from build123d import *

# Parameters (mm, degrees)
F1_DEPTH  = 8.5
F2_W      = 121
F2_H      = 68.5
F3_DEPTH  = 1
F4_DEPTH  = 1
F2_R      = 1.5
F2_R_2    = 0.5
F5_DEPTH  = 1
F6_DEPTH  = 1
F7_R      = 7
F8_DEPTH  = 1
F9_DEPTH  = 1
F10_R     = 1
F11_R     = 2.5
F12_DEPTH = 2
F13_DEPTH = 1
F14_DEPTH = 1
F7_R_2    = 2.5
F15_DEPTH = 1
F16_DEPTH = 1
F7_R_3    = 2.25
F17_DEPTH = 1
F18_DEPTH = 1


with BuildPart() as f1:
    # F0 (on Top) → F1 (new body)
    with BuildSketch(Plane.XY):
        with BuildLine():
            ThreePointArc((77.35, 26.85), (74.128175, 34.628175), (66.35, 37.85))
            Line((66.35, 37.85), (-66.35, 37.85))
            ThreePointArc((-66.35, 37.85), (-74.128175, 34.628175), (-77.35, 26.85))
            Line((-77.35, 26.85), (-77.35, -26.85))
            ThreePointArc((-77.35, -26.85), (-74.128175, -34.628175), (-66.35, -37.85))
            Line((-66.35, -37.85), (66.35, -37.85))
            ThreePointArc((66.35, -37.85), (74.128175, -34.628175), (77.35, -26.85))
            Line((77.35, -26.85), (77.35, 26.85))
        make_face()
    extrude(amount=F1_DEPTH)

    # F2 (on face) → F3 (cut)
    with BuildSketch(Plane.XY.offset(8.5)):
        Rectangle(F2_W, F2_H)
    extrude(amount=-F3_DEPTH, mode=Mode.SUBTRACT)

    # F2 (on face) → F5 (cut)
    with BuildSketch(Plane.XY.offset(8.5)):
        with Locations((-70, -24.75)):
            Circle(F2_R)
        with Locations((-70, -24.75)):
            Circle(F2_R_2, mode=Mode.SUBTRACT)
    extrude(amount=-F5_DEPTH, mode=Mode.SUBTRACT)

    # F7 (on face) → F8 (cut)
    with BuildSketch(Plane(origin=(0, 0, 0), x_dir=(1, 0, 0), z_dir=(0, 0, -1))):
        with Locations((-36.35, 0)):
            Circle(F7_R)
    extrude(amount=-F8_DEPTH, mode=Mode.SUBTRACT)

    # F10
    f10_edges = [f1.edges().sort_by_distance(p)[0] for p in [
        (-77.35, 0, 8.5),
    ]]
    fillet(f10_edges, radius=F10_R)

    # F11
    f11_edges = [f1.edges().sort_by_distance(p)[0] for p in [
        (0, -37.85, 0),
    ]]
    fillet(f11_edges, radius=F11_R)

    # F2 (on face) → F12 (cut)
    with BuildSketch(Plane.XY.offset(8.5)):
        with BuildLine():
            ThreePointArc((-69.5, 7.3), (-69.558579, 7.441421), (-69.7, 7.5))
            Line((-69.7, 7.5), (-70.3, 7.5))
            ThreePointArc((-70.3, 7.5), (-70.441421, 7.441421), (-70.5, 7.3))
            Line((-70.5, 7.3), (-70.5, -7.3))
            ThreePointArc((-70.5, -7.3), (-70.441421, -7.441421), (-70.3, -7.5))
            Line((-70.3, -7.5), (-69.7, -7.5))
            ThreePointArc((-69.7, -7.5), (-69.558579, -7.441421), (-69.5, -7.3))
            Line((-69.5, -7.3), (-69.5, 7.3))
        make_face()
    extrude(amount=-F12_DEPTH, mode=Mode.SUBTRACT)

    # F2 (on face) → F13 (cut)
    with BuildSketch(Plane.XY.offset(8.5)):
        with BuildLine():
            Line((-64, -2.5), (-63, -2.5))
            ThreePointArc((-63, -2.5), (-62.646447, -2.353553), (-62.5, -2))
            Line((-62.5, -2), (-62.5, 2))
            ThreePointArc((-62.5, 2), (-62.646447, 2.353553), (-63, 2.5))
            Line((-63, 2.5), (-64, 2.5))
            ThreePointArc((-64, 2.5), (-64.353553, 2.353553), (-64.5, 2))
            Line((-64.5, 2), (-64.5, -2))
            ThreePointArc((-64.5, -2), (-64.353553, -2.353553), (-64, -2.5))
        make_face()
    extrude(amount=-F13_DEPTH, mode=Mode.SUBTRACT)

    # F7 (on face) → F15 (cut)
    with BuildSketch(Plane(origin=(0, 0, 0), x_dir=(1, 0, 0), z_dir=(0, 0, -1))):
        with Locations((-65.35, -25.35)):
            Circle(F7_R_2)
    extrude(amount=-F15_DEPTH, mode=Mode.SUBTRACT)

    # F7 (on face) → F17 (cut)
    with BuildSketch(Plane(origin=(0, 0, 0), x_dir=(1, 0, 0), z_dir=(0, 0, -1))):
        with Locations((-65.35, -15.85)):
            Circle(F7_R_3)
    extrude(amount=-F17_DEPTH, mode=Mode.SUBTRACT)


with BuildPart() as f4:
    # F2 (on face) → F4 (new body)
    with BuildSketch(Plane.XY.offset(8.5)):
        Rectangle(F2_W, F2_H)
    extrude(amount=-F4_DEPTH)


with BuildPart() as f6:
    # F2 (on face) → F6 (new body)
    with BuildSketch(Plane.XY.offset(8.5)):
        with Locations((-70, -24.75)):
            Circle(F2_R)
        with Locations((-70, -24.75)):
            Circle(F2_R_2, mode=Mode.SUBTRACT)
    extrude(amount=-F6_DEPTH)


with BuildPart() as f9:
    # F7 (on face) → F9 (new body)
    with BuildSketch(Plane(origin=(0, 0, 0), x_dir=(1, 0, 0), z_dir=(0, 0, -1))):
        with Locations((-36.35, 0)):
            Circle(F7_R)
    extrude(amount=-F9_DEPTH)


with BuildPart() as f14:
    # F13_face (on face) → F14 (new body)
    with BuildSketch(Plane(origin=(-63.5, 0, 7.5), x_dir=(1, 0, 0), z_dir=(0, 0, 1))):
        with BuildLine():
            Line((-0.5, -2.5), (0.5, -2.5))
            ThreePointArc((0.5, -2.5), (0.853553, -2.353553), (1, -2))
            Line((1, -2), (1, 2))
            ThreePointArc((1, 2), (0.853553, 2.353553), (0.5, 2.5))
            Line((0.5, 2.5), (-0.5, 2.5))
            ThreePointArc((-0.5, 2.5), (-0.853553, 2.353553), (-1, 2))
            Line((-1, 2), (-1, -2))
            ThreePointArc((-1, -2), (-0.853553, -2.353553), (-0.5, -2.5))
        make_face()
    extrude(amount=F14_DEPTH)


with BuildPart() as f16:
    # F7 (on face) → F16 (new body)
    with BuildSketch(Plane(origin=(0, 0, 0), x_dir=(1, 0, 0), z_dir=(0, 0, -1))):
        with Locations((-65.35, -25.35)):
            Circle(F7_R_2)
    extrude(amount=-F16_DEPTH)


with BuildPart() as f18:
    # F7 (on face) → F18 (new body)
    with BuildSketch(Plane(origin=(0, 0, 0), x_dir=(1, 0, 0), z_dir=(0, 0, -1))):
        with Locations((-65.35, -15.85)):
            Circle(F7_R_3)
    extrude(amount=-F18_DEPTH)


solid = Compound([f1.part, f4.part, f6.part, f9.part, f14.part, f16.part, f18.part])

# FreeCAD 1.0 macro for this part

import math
import FreeCAD as App
import Part
import Sketcher
Q = App.Units.Quantity


def edges_at(feature, points):
    """Names of the edges that pass closest to the given points."""
    edges = feature.Shape.Edges
    near = lambda p: min(range(len(edges)), key=lambda i: edges[i].distToShape(Part.Vertex(*p))[0])
    return sorted({f"Edge{near(p) + 1}" for p in points})


def add_polygon(sketch, points):
    """Adds a closed chain of lines whose ends are joined by coincident constraints."""
    first, n = sketch.GeometryCount, len(points)
    for a, b in zip(points, points[1:] + points[:1]):
        sketch.addGeometry(Part.LineSegment(App.Vector(*a, 0), App.Vector(*b, 0)), False)
    for i in range(n):
        sketch.addConstraint(Sketcher.Constraint("Coincident", first + i, 2, first + (i + 1) % n, 1))

doc = App.newDocument("Part")
body = doc.addObject("PartDesign::Body", "Body")

# Sketch on XY plane
sketch1 = body.newObject("Sketcher::SketchObject", "Sketch")
sketch1.AttachmentSupport = (doc.getObject("XY_Plane"), [""])
sketch1.MapMode = "FlatFace"
sketch1.addGeometry([
    Part.ArcOfCircle(Part.Circle(App.Vector(66.350001, 26.850001, 0), App.Vector(0, 0, 1), 10.999999), math.radians(-0.000007), math.radians(90.000007)),  # 0
    Part.LineSegment(App.Vector(66.35, 37.85, 0), App.Vector(-66.35, 37.85, 0)),  # 1
    Part.ArcOfCircle(Part.Circle(App.Vector(-66.350001, 26.850001, 0), App.Vector(0, 0, 1), 10.999999), math.radians(89.999993), math.radians(180.000007)),  # 2
    Part.LineSegment(App.Vector(-77.35, 26.85, 0), App.Vector(-77.35, -26.85, 0)),  # 3
    Part.ArcOfCircle(Part.Circle(App.Vector(-66.350001, -26.850001, 0), App.Vector(0, 0, 1), 10.999999), math.radians(179.999993), math.radians(270.000007)),  # 4
    Part.LineSegment(App.Vector(-66.35, -37.85, 0), App.Vector(66.35, -37.85, 0)),  # 5
    Part.ArcOfCircle(Part.Circle(App.Vector(66.350001, -26.850001, 0), App.Vector(0, 0, 1), 10.999999), math.radians(-90.000007), math.radians(0.000007)),  # 6
    Part.LineSegment(App.Vector(77.35, -26.85, 0), App.Vector(77.35, 26.85, 0)),  # 7
], False)
sketch1.addConstraint([
    Sketcher.Constraint("Tangent", 0, 2, 1, 1),
    Sketcher.Constraint("Tangent", 1, 2, 2, 1),
    Sketcher.Constraint("Tangent", 2, 2, 3, 1),
    Sketcher.Constraint("Tangent", 3, 2, 4, 1),
    Sketcher.Constraint("Tangent", 4, 2, 5, 1),
    Sketcher.Constraint("Tangent", 5, 2, 6, 1),
    Sketcher.Constraint("Tangent", 6, 2, 7, 1),
    Sketcher.Constraint("Tangent", 7, 2, 0, 1),
    Sketcher.Constraint("Horizontal", 1),
    Sketcher.Constraint("Vertical", 3),
    Sketcher.Constraint("Horizontal", 5),
    Sketcher.Constraint("Vertical", 7),
    Sketcher.Constraint("Equal", 0, 2),
    Sketcher.Constraint("Equal", 2, 4),
    Sketcher.Constraint("Equal", 4, 6),
    Sketcher.Constraint("Symmetric", 0, 3, 4, 3, -1, 1),
    Sketcher.Constraint("Radius", 0, Q("10.999999 mm")),
    Sketcher.Constraint("DistanceX", 1, 2, 1, 1, Q("132.7 mm")),
    Sketcher.Constraint("DistanceY", 3, 2, 3, 1, Q("53.7 mm")),
])
pad1 = body.newObject("PartDesign::Pad", "Pad")
pad1.Profile = sketch1
pad1.Length = 8.5

# Sketch on XY plane
sketch2 = body.newObject("Sketcher::SketchObject", "Sketch001")
sketch2.AttachmentSupport = (doc.getObject("XY_Plane"), [""])
sketch2.MapMode = "FlatFace"
sketch2.AttachmentOffset = App.Placement(App.Vector(0, 0, 8.5), App.Rotation())
add_polygon(sketch2, [(-60.5, 34.25), (-60.5, -34.25), (60.5, -34.25), (60.5, 34.25)])  # lines 0-3
sketch2.addConstraint([
    Sketcher.Constraint("Vertical", 0),
    Sketcher.Constraint("Horizontal", 1),
    Sketcher.Constraint("Vertical", 2),
    Sketcher.Constraint("Horizontal", 3),
    Sketcher.Constraint("Symmetric", 0, 2, 2, 2, -1, 1),
    Sketcher.Constraint("DistanceX", 1, 1, 1, 2, Q("121 mm")),
    Sketcher.Constraint("DistanceY", 0, 2, 0, 1, Q("68.5 mm")),
])
pocket1 = body.newObject("PartDesign::Pocket", "Pocket")
pocket1.Profile = sketch2
pocket1.Length = 1

# Sketch on XY plane
sketch3 = body.newObject("Sketcher::SketchObject", "Sketch002")
sketch3.AttachmentSupport = (doc.getObject("XY_Plane"), [""])
sketch3.MapMode = "FlatFace"
sketch3.AttachmentOffset = App.Placement(App.Vector(0, 0, 8.5), App.Rotation())
sketch3.addGeometry([
    Part.Circle(App.Vector(-70, -24.75, 0), App.Vector(0, 0, 1), 1.5),
    Part.Circle(App.Vector(-70, -24.75, 0), App.Vector(0, 0, 1), 0.5),
], False)
sketch3.addConstraint([
    Sketcher.Constraint("Coincident", 1, 3, 0, 3),
    Sketcher.Constraint("Diameter", 0, Q("3 mm")),
    Sketcher.Constraint("Diameter", 1, Q("1 mm")),
    Sketcher.Constraint("DistanceX", 0, 3, -1, 1, Q("70 mm")),
    Sketcher.Constraint("DistanceY", 0, 3, -1, 1, Q("24.75 mm")),
])
pocket2 = body.newObject("PartDesign::Pocket", "Pocket001")
pocket2.Profile = sketch3
pocket2.Length = 1

# Sketch on XY plane
sketch4 = body.newObject("Sketcher::SketchObject", "Sketch003")
sketch4.AttachmentSupport = (doc.getObject("XY_Plane"), [""])
sketch4.MapMode = "FlatFace"
sketch4.addGeometry(Part.Circle(App.Vector(-36.35, 0, 0), App.Vector(0, 0, 1), 7), False)
sketch4.addConstraint([
    Sketcher.Constraint("PointOnObject", 0, 3, -1),
    Sketcher.Constraint("Diameter", 0, Q("14 mm")),
    Sketcher.Constraint("DistanceX", 0, 3, -1, 1, Q("36.35 mm")),
])
pocket3 = body.newObject("PartDesign::Pocket", "Pocket002")
pocket3.Profile = sketch4
pocket3.Length = 1
pocket3.Reversed = True
doc.recompute()

fillet = body.newObject("PartDesign::Fillet", "Fillet")
fillet.Base = (pocket3, edges_at(pocket3, [(-77.35, 0, 8.5)]))
fillet.Radius = 1
doc.recompute()

fillet2 = body.newObject("PartDesign::Fillet", "Fillet001")
fillet2.Base = (fillet, edges_at(fillet, [(0, -37.85, 0)]))
fillet2.Radius = 2.5

# Sketch on XY plane
sketch5 = body.newObject("Sketcher::SketchObject", "Sketch004")
sketch5.AttachmentSupport = (doc.getObject("XY_Plane"), [""])
sketch5.MapMode = "FlatFace"
sketch5.AttachmentOffset = App.Placement(App.Vector(0, 0, 8.5), App.Rotation())
sketch5.addGeometry([
    Part.ArcOfCircle(Part.Circle(App.Vector(-69.700001, 7.299999, 0), App.Vector(0, 0, 1), 0.200001), math.radians(0.000348), math.radians(89.999652)),  # 0
    Part.LineSegment(App.Vector(-69.7, 7.5, 0), App.Vector(-70.3, 7.5, 0)),  # 1
    Part.ArcOfCircle(Part.Circle(App.Vector(-70.299999, 7.299999, 0), App.Vector(0, 0, 1), 0.200001), math.radians(90.000348), math.radians(179.999652)),  # 2
    Part.LineSegment(App.Vector(-70.5, 7.3, 0), App.Vector(-70.5, -7.3, 0)),  # 3
    Part.ArcOfCircle(Part.Circle(App.Vector(-70.299999, -7.299999, 0), App.Vector(0, 0, 1), 0.200001), math.radians(-179.999652), math.radians(-90.000348)),  # 4
    Part.LineSegment(App.Vector(-70.3, -7.5, 0), App.Vector(-69.7, -7.5, 0)),  # 5
    Part.ArcOfCircle(Part.Circle(App.Vector(-69.700001, -7.299999, 0), App.Vector(0, 0, 1), 0.200001), math.radians(-89.999652), math.radians(-0.000348)),  # 6
    Part.LineSegment(App.Vector(-69.5, -7.3, 0), App.Vector(-69.5, 7.3, 0)),  # 7
], False)
sketch5.addConstraint([
    Sketcher.Constraint("Coincident", 0, 2, 1, 1),
    Sketcher.Constraint("Coincident", 1, 2, 2, 1),
    Sketcher.Constraint("Coincident", 2, 2, 3, 1),
    Sketcher.Constraint("Coincident", 3, 2, 4, 1),
    Sketcher.Constraint("Coincident", 4, 2, 5, 1),
    Sketcher.Constraint("Coincident", 5, 2, 6, 1),
    Sketcher.Constraint("Coincident", 6, 2, 7, 1),
    Sketcher.Constraint("Coincident", 7, 2, 0, 1),
    Sketcher.Constraint("Horizontal", 1),
    Sketcher.Constraint("Vertical", 3),
    Sketcher.Constraint("Horizontal", 5),
    Sketcher.Constraint("Vertical", 7),
    Sketcher.Constraint("Equal", 0, 2),
    Sketcher.Constraint("Equal", 2, 4),
    Sketcher.Constraint("Equal", 4, 6),
    Sketcher.Constraint("Symmetric", 1, 2, 4, 2, -1),
    Sketcher.Constraint("Horizontal", 0, 3, 2, 2),
    Sketcher.Constraint("Horizontal", 6, 3, 3, 2),
    Sketcher.Constraint("Horizontal", 3, 2, 6, 2),
    Sketcher.Constraint("Horizontal", 2, 2, 7, 2),
    Sketcher.Constraint("Vertical", 6, 3, 0, 2),
    Sketcher.Constraint("Vertical", 4, 3, 1, 2),
    Sketcher.Constraint("Vertical", 0, 2, 5, 2),
    Sketcher.Constraint("Radius", 0, Q("0.200001 mm")),
    Sketcher.Constraint("DistanceX", 1, 2, 1, 1, Q("0.6 mm")),
    Sketcher.Constraint("DistanceY", 3, 2, 3, 1, Q("14.6 mm")),
    Sketcher.Constraint("DistanceX", 0, 3, -1, 1, Q("69.700001 mm")),
])
pocket4 = body.newObject("PartDesign::Pocket", "Pocket003")
pocket4.Profile = sketch5
pocket4.Length = 2

# Sketch on XY plane
sketch6 = body.newObject("Sketcher::SketchObject", "Sketch005")
sketch6.AttachmentSupport = (doc.getObject("XY_Plane"), [""])
sketch6.MapMode = "FlatFace"
sketch6.AttachmentOffset = App.Placement(App.Vector(0, 0, 8.5), App.Rotation())
sketch6.addGeometry([
    Part.LineSegment(App.Vector(-64, -2.5, 0), App.Vector(-63, -2.5, 0)),  # 0
    Part.ArcOfCircle(Part.Circle(App.Vector(-63.000001, -1.999999, 0), App.Vector(0, 0, 1), 0.500001), math.radians(-89.999847), math.radians(-0.000153)),  # 1
    Part.LineSegment(App.Vector(-62.5, -2, 0), App.Vector(-62.5, 2, 0)),  # 2
    Part.ArcOfCircle(Part.Circle(App.Vector(-63.000001, 1.999999, 0), App.Vector(0, 0, 1), 0.500001), math.radians(0.000153), math.radians(89.999847)),  # 3
    Part.LineSegment(App.Vector(-63, 2.5, 0), App.Vector(-64, 2.5, 0)),  # 4
    Part.ArcOfCircle(Part.Circle(App.Vector(-63.999999, 1.999999, 0), App.Vector(0, 0, 1), 0.500001), math.radians(90.000153), math.radians(179.999847)),  # 5
    Part.LineSegment(App.Vector(-64.5, 2, 0), App.Vector(-64.5, -2, 0)),  # 6
    Part.ArcOfCircle(Part.Circle(App.Vector(-63.999999, -1.999999, 0), App.Vector(0, 0, 1), 0.500001), math.radians(-179.999847), math.radians(-90.000153)),  # 7
], False)
sketch6.addConstraint([
    Sketcher.Constraint("Coincident", 0, 2, 1, 1),
    Sketcher.Constraint("Coincident", 1, 2, 2, 1),
    Sketcher.Constraint("Coincident", 2, 2, 3, 1),
    Sketcher.Constraint("Coincident", 3, 2, 4, 1),
    Sketcher.Constraint("Coincident", 4, 2, 5, 1),
    Sketcher.Constraint("Coincident", 5, 2, 6, 1),
    Sketcher.Constraint("Coincident", 6, 2, 7, 1),
    Sketcher.Constraint("Coincident", 7, 2, 0, 1),
    Sketcher.Constraint("Horizontal", 0),
    Sketcher.Constraint("Vertical", 2),
    Sketcher.Constraint("Horizontal", 4),
    Sketcher.Constraint("Vertical", 6),
    Sketcher.Constraint("Equal", 1, 3),
    Sketcher.Constraint("Equal", 3, 5),
    Sketcher.Constraint("Equal", 5, 7),
    Sketcher.Constraint("Symmetric", 0, 2, 3, 2, -1),
    Sketcher.Constraint("Horizontal", 7, 3, 1, 2),
    Sketcher.Constraint("Horizontal", 5, 3, 2, 2),
    Sketcher.Constraint("Horizontal", 2, 2, 5, 2),
    Sketcher.Constraint("Horizontal", 1, 2, 6, 2),
    Sketcher.Constraint("Vertical", 3, 3, 0, 2),
    Sketcher.Constraint("Vertical", 7, 3, 4, 2),
    Sketcher.Constraint("Vertical", 4, 2, 7, 2),
    Sketcher.Constraint("Radius", 1, Q("0.500001 mm")),
    Sketcher.Constraint("DistanceX", 0, 1, 0, 2, Q("1 mm")),
    Sketcher.Constraint("DistanceY", 2, 1, 2, 2, Q("4 mm")),
    Sketcher.Constraint("DistanceX", 1, 3, -1, 1, Q("63.000001 mm")),
])
pocket5 = body.newObject("PartDesign::Pocket", "Pocket004")
pocket5.Profile = sketch6
pocket5.Length = 1

# Sketch on XY plane
sketch7 = body.newObject("Sketcher::SketchObject", "Sketch006")
sketch7.AttachmentSupport = (doc.getObject("XY_Plane"), [""])
sketch7.MapMode = "FlatFace"
sketch7.addGeometry(Part.Circle(App.Vector(-65.35, 25.35, 0), App.Vector(0, 0, 1), 2.5), False)
sketch7.addConstraint([
    Sketcher.Constraint("Diameter", 0, Q("5 mm")),
    Sketcher.Constraint("DistanceX", 0, 3, -1, 1, Q("65.35 mm")),
    Sketcher.Constraint("DistanceY", -1, 1, 0, 3, Q("25.35 mm")),
])
pocket6 = body.newObject("PartDesign::Pocket", "Pocket005")
pocket6.Profile = sketch7
pocket6.Length = 1
pocket6.Reversed = True

# Sketch on XY plane
sketch8 = body.newObject("Sketcher::SketchObject", "Sketch007")
sketch8.AttachmentSupport = (doc.getObject("XY_Plane"), [""])
sketch8.MapMode = "FlatFace"
sketch8.addGeometry(Part.Circle(App.Vector(-65.35, 15.85, 0), App.Vector(0, 0, 1), 2.25), False)
sketch8.addConstraint([
    Sketcher.Constraint("Diameter", 0, Q("4.5 mm")),
    Sketcher.Constraint("DistanceX", 0, 3, -1, 1, Q("65.35 mm")),
    Sketcher.Constraint("DistanceY", -1, 1, 0, 3, Q("15.85 mm")),
])
pocket7 = body.newObject("PartDesign::Pocket", "Pocket006")
pocket7.Profile = sketch8
pocket7.Length = 1
pocket7.Reversed = True
body2 = doc.addObject("PartDesign::Body", "Body001")

# Sketch on XY plane
sketch9 = body2.newObject("Sketcher::SketchObject", "Sketch008")
sketch9.AttachmentSupport = (doc.getObject("XY_Plane001"), [""])
sketch9.MapMode = "FlatFace"
sketch9.AttachmentOffset = App.Placement(App.Vector(0, 0, 8.5), App.Rotation())
add_polygon(sketch9, [(-60.5, 34.25), (-60.5, -34.25), (60.5, -34.25), (60.5, 34.25)])  # lines 0-3
sketch9.addConstraint([
    Sketcher.Constraint("Vertical", 0),
    Sketcher.Constraint("Horizontal", 1),
    Sketcher.Constraint("Vertical", 2),
    Sketcher.Constraint("Horizontal", 3),
    Sketcher.Constraint("Symmetric", 0, 2, 2, 2, -1, 1),
    Sketcher.Constraint("DistanceX", 1, 1, 1, 2, Q("121 mm")),
    Sketcher.Constraint("DistanceY", 0, 2, 0, 1, Q("68.5 mm")),
])
pad2 = body2.newObject("PartDesign::Pad", "Pad001")
pad2.Profile = sketch9
pad2.Length = 1
pad2.Reversed = True
body3 = doc.addObject("PartDesign::Body", "Body002")

# Sketch on XY plane
sketch10 = body3.newObject("Sketcher::SketchObject", "Sketch009")
sketch10.AttachmentSupport = (doc.getObject("XY_Plane002"), [""])
sketch10.MapMode = "FlatFace"
sketch10.AttachmentOffset = App.Placement(App.Vector(0, 0, 8.5), App.Rotation())
sketch10.addGeometry([
    Part.Circle(App.Vector(-70, -24.75, 0), App.Vector(0, 0, 1), 1.5),
    Part.Circle(App.Vector(-70, -24.75, 0), App.Vector(0, 0, 1), 0.5),
], False)
sketch10.addConstraint([
    Sketcher.Constraint("Coincident", 1, 3, 0, 3),
    Sketcher.Constraint("Diameter", 0, Q("3 mm")),
    Sketcher.Constraint("Diameter", 1, Q("1 mm")),
    Sketcher.Constraint("DistanceX", 0, 3, -1, 1, Q("70 mm")),
    Sketcher.Constraint("DistanceY", 0, 3, -1, 1, Q("24.75 mm")),
])
pad3 = body3.newObject("PartDesign::Pad", "Pad002")
pad3.Profile = sketch10
pad3.Length = 1
pad3.Reversed = True
body4 = doc.addObject("PartDesign::Body", "Body003")

# Sketch on XY plane
sketch11 = body4.newObject("Sketcher::SketchObject", "Sketch010")
sketch11.AttachmentSupport = (doc.getObject("XY_Plane003"), [""])
sketch11.MapMode = "FlatFace"
sketch11.addGeometry(Part.Circle(App.Vector(-36.35, 0, 0), App.Vector(0, 0, 1), 7), False)
sketch11.addConstraint([
    Sketcher.Constraint("PointOnObject", 0, 3, -1),
    Sketcher.Constraint("Diameter", 0, Q("14 mm")),
    Sketcher.Constraint("DistanceX", 0, 3, -1, 1, Q("36.35 mm")),
])
pad4 = body4.newObject("PartDesign::Pad", "Pad003")
pad4.Profile = sketch11
pad4.Length = 1
body5 = doc.addObject("PartDesign::Body", "Body004")

# Sketch on XY plane
sketch12 = body5.newObject("Sketcher::SketchObject", "Sketch011")
sketch12.AttachmentSupport = (doc.getObject("XY_Plane004"), [""])
sketch12.MapMode = "FlatFace"
sketch12.AttachmentOffset = App.Placement(App.Vector(0, 0, 7.5), App.Rotation())
sketch12.addGeometry([
    Part.LineSegment(App.Vector(-64, -2.5, 0), App.Vector(-63, -2.5, 0)),  # 0
    Part.ArcOfCircle(Part.Circle(App.Vector(-63.000001, -1.999999, 0), App.Vector(0, 0, 1), 0.500001), math.radians(-89.999847), math.radians(-0.000153)),  # 1
    Part.LineSegment(App.Vector(-62.5, -2, 0), App.Vector(-62.5, 2, 0)),  # 2
    Part.ArcOfCircle(Part.Circle(App.Vector(-63.000001, 1.999999, 0), App.Vector(0, 0, 1), 0.500001), math.radians(0.000153), math.radians(89.999847)),  # 3
    Part.LineSegment(App.Vector(-63, 2.5, 0), App.Vector(-64, 2.5, 0)),  # 4
    Part.ArcOfCircle(Part.Circle(App.Vector(-63.999999, 1.999999, 0), App.Vector(0, 0, 1), 0.500001), math.radians(90.000153), math.radians(179.999847)),  # 5
    Part.LineSegment(App.Vector(-64.5, 2, 0), App.Vector(-64.5, -2, 0)),  # 6
    Part.ArcOfCircle(Part.Circle(App.Vector(-63.999999, -1.999999, 0), App.Vector(0, 0, 1), 0.500001), math.radians(-179.999847), math.radians(-90.000153)),  # 7
], False)
sketch12.addConstraint([
    Sketcher.Constraint("Coincident", 0, 2, 1, 1),
    Sketcher.Constraint("Coincident", 1, 2, 2, 1),
    Sketcher.Constraint("Coincident", 2, 2, 3, 1),
    Sketcher.Constraint("Coincident", 3, 2, 4, 1),
    Sketcher.Constraint("Coincident", 4, 2, 5, 1),
    Sketcher.Constraint("Coincident", 5, 2, 6, 1),
    Sketcher.Constraint("Coincident", 6, 2, 7, 1),
    Sketcher.Constraint("Coincident", 7, 2, 0, 1),
    Sketcher.Constraint("Horizontal", 0),
    Sketcher.Constraint("Vertical", 2),
    Sketcher.Constraint("Horizontal", 4),
    Sketcher.Constraint("Vertical", 6),
    Sketcher.Constraint("Equal", 1, 3),
    Sketcher.Constraint("Equal", 3, 5),
    Sketcher.Constraint("Equal", 5, 7),
    Sketcher.Constraint("Symmetric", 0, 2, 3, 2, -1),
    Sketcher.Constraint("Horizontal", 7, 3, 1, 2),
    Sketcher.Constraint("Horizontal", 5, 3, 2, 2),
    Sketcher.Constraint("Horizontal", 2, 2, 5, 2),
    Sketcher.Constraint("Horizontal", 1, 2, 6, 2),
    Sketcher.Constraint("Vertical", 3, 3, 0, 2),
    Sketcher.Constraint("Vertical", 7, 3, 4, 2),
    Sketcher.Constraint("Vertical", 4, 2, 7, 2),
    Sketcher.Constraint("Radius", 1, Q("0.500001 mm")),
    Sketcher.Constraint("DistanceX", 0, 1, 0, 2, Q("1 mm")),
    Sketcher.Constraint("DistanceY", 2, 1, 2, 2, Q("4 mm")),
    Sketcher.Constraint("DistanceX", 1, 3, -1, 1, Q("63.000001 mm")),
])
pad5 = body5.newObject("PartDesign::Pad", "Pad004")
pad5.Profile = sketch12
pad5.Length = 1
body6 = doc.addObject("PartDesign::Body", "Body005")

# Sketch on XY plane
sketch13 = body6.newObject("Sketcher::SketchObject", "Sketch012")
sketch13.AttachmentSupport = (doc.getObject("XY_Plane005"), [""])
sketch13.MapMode = "FlatFace"
sketch13.addGeometry(Part.Circle(App.Vector(-65.35, 25.35, 0), App.Vector(0, 0, 1), 2.5), False)
sketch13.addConstraint([
    Sketcher.Constraint("Diameter", 0, Q("5 mm")),
    Sketcher.Constraint("DistanceX", 0, 3, -1, 1, Q("65.35 mm")),
    Sketcher.Constraint("DistanceY", -1, 1, 0, 3, Q("25.35 mm")),
])
pad6 = body6.newObject("PartDesign::Pad", "Pad005")
pad6.Profile = sketch13
pad6.Length = 1
body7 = doc.addObject("PartDesign::Body", "Body006")

# Sketch on XY plane
sketch14 = body7.newObject("Sketcher::SketchObject", "Sketch013")
sketch14.AttachmentSupport = (doc.getObject("XY_Plane006"), [""])
sketch14.MapMode = "FlatFace"
sketch14.addGeometry(Part.Circle(App.Vector(-65.35, 15.85, 0), App.Vector(0, 0, 1), 2.25), False)
sketch14.addConstraint([
    Sketcher.Constraint("Diameter", 0, Q("4.5 mm")),
    Sketcher.Constraint("DistanceX", 0, 3, -1, 1, Q("65.35 mm")),
    Sketcher.Constraint("DistanceY", -1, 1, 0, 3, Q("15.85 mm")),
])
pad7 = body7.newObject("PartDesign::Pad", "Pad006")
pad7.Profile = sketch14
pad7.Length = 1

doc.recompute()
